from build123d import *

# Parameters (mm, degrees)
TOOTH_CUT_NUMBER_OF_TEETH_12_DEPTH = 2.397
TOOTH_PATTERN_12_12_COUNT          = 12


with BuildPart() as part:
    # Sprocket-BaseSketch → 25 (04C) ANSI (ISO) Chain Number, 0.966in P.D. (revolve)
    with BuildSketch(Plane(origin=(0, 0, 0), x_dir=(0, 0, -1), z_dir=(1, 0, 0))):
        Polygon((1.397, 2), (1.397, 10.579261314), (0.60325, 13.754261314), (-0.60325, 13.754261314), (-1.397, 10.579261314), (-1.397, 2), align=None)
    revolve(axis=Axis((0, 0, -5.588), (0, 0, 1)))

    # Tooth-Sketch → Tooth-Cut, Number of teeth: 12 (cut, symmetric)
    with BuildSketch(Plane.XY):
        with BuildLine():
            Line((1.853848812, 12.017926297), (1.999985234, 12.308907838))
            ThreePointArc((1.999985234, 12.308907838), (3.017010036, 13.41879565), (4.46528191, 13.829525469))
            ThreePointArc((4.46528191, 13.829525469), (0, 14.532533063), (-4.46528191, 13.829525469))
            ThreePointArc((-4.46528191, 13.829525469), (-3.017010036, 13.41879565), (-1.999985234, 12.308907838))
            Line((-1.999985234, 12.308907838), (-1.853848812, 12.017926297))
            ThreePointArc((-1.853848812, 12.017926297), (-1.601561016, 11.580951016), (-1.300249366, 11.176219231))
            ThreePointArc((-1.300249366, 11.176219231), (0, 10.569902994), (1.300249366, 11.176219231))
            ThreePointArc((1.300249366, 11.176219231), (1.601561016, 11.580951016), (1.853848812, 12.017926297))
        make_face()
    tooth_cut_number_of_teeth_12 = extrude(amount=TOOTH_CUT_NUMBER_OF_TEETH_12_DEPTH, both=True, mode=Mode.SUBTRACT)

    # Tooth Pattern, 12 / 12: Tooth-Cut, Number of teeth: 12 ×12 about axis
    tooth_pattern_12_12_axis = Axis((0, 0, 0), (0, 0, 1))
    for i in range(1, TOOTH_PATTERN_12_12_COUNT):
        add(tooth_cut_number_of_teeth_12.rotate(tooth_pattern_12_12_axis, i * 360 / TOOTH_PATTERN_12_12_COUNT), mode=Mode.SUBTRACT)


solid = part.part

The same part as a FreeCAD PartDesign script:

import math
import FreeCAD as App
import Part
import Sketcher
Q = App.Units.Quantity

doc = App.newDocument("Part")
params = doc.addObject("Spreadsheet::Sheet", "Params")
for row, (alias, value) in enumerate([
    ("sketch1_height", "0.11 in"),
    ("revolution_angle", "360 deg"),
    ("pocket1_length", "4.794 mm"),
], start=1):
    params.set(f"A{row}", alias)
    params.set(f"B{row}", "=" + value)
    params.setAlias(f"B{row}", alias)

body = doc.addObject("PartDesign::Body", "Body")

# Sketch on YZ plane
sketch1 = doc.addObject("Sketcher::SketchObject", "Sketch")
body.addObject(sketch1)
sketch1.AttachmentSupport = (doc.YZ_Plane, [""])
sketch1.MapMode = "FlatFace"
sketch1.addGeometry(Part.LineSegment(App.Vector(2, -1.397, 0), App.Vector(10.579261, -1.397, 0)), False)
sketch1.addGeometry(Part.LineSegment(App.Vector(10.579261, -1.397, 0), App.Vector(13.754261, -0.60325, 0)), False)
sketch1.addGeometry(Part.LineSegment(App.Vector(13.754261, -0.60325, 0), App.Vector(13.754261, 0.60325, 0)), False)
sketch1.addGeometry(Part.LineSegment(App.Vector(13.754261, 0.60325, 0), App.Vector(10.579261, 1.397, 0)), False)
sketch1.addGeometry(Part.LineSegment(App.Vector(10.579261, 1.397, 0), App.Vector(2, 1.397, 0)), False)
sketch1.addGeometry(Part.LineSegment(App.Vector(2, 1.397, 0), App.Vector(2, -1.397, 0)), False)
sketch1.addConstraint(Sketcher.Constraint("Coincident", 0, 2, 1, 1))
sketch1.addConstraint(Sketcher.Constraint("Coincident", 1, 2, 2, 1))
sketch1.addConstraint(Sketcher.Constraint("Coincident", 2, 2, 3, 1))
sketch1.addConstraint(Sketcher.Constraint("Coincident", 3, 2, 4, 1))
sketch1.addConstraint(Sketcher.Constraint("Coincident", 4, 2, 5, 1))
sketch1.addConstraint(Sketcher.Constraint("Coincident", 5, 2, 0, 1))
sketch1.addConstraint(Sketcher.Constraint("Horizontal", 0))
sketch1.addConstraint(Sketcher.Constraint("Vertical", 2))
sketch1.addConstraint(Sketcher.Constraint("Horizontal", 4))
sketch1.addConstraint(Sketcher.Constraint("Vertical", 5))
sketch1.addConstraint(Sketcher.Constraint("Symmetric", 0, 2, 3, 2, -1))
sketch1.addConstraint(Sketcher.Constraint("Equal", 1, 3))
sketch1.addConstraint(Sketcher.Constraint("DistanceY", 5, 2, 5, 1, Q("0.11 in")))
sketch1.addConstraint(Sketcher.Constraint("DistanceY", 2, 1, 2, 2, Q("0.0475 in")))
sketch1.addConstraint(Sketcher.Constraint("DistanceX", 0, 2, 1, 2, Q("0.125 in")))
sketch1.addConstraint(Sketcher.Constraint("DistanceX", 0, 1, 0, 2, Q("8.579261 mm")))
sketch1.addConstraint(Sketcher.Constraint("DistanceX", -1, 1, 4, 2, Q("2 mm")))
sketch1.setExpression("Constraints[12]", "Params.sketch1_height")
revolution = doc.addObject("PartDesign::Revolution", "Revolution")
body.addObject(revolution)
revolution.Profile = sketch1
revolution.ReferenceAxis = (sketch1, ["V_Axis"])
revolution.setExpression("Angle", "Params.revolution_angle")

# Sketch on XY plane
sketch2 = doc.addObject("Sketcher::SketchObject", "Sketch001")
body.addObject(sketch2)
sketch2.AttachmentSupport = (doc.XY_Plane, [""])
sketch2.MapMode = "FlatFace"
sketch2.addGeometry(Part.LineSegment(App.Vector(1.853849, 12.017926, 0), App.Vector(1.999985, 12.308908, 0)), False)
sketch2.addGeometry(Part.ArcOfCircle(Part.Circle(App.Vector(4.465282, 11.070789, 0), App.Vector(0, 0, 1), 2.758736), math.radians(90), math.radians(153.333333)), False)
sketch2.addGeometry(Part.ArcOfCircle(Part.Circle(App.Vector(0, 0, 0), App.Vector(0, 0, 1), 14.532533), math.radians(72.105752), math.radians(107.894248)), False)
sketch2.addGeometry(Part.ArcOfCircle(Part.Circle(App.Vector(-4.465282, 11.070789, 0), App.Vector(0, 0, 1), 2.758736), math.radians(26.666667), math.radians(90)), False)
sketch2.addGeometry(Part.LineSegment(App.Vector(-1.999985, 12.308908, 0), App.Vector(-1.853849, 12.017926, 0)), False)
sketch2.addGeometry(Part.ArcOfCircle(Part.Circle(App.Vector(2.023583, 13.965246, 0), App.Vector(0, 0, 1), 4.338955), math.radians(-153.333333), math.radians(-140)), False)
sketch2.addGeometry(Part.ArcOfCircle(Part.Circle(App.Vector(0, 12.267258, 0), App.Vector(0, 0, 1), 1.697355), math.radians(-140), math.radians(-40)), False)
sketch2.addGeometry(Part.ArcOfCircle(Part.Circle(App.Vector(-2.023583, 13.965246, 0), App.Vector(0, 0, 1), 4.338955), math.radians(-40), math.radians(-26.666667)), False)
sketch2.addConstraint(Sketcher.Constraint("Tangent", 0, 2, 1, 2))
sketch2.addConstraint(Sketcher.Constraint("Coincident", 1, 1, 2, 1))
sketch2.addConstraint(Sketcher.Constraint("Coincident", 2, 2, 3, 2))
sketch2.addConstraint(Sketcher.Constraint("Tangent", 3, 1, 4, 1))
sketch2.addConstraint(Sketcher.Constraint("Tangent", 4, 2, 5, 1))
sketch2.addConstraint(Sketcher.Constraint("Tangent", 5, 2, 6, 1))
sketch2.addConstraint(Sketcher.Constraint("Tangent", 6, 2, 7, 1))
sketch2.addConstraint(Sketcher.Constraint("Tangent", 7, 2, 0, 1))
sketch2.addConstraint(Sketcher.Constraint("Coincident", 2, 3, -1, 1))
sketch2.addConstraint(Sketcher.Constraint("Equal", 1, 3))
sketch2.addConstraint(Sketcher.Constraint("Equal", 5, 7))
sketch2.addConstraint(Sketcher.Constraint("Symmetric", 1, 3, 3, 3, -2))
sketch2.addConstraint(Sketcher.Constraint("Symmetric", 5, 3, 7, 3, -2))
sketch2.addConstraint(Sketcher.Constraint("Vertical", 3, 3, 2, 2))
sketch2.addConstraint(Sketcher.Constraint("Radius", 1, Q("2.758736 mm")))
sketch2.addConstraint(Sketcher.Constraint("Radius", 2, Q("14.532533 mm")))
sketch2.addConstraint(Sketcher.Constraint("Radius", 5, Q("4.338955 mm")))
sketch2.addConstraint(Sketcher.Constraint("Radius", 6, Q("1.697355 mm")))
sketch2.addConstraint(Sketcher.Constraint("DistanceX", 5, 3, 1, 3, Q("2.441699 mm")))
sketch2.addConstraint(Sketcher.Constraint("DistanceY", 4, 2, 2, 2, Q("1.811599 mm")))
sketch2.addConstraint(Sketcher.Constraint("DistanceX", 4, 2, 5, 2, Q("0.553599 mm")))
pocket1 = doc.addObject("PartDesign::Pocket", "Pocket")
body.addObject(pocket1)
pocket1.Profile = sketch2
pocket1.setExpression("Length", "Params.pocket1_length")
pocket1.Midplane = True
doc.recompute()

polarpattern = doc.addObject("PartDesign::PolarPattern", "PolarPattern")
body.addObject(polarpattern)
polarpattern.Originals = [pocket1]
polarpattern.Axis = (doc.Z_Axis, [""])
polarpattern.Angle = 360
polarpattern.Occurrences = 12
body.Tip = polarpattern

doc.recompute()
